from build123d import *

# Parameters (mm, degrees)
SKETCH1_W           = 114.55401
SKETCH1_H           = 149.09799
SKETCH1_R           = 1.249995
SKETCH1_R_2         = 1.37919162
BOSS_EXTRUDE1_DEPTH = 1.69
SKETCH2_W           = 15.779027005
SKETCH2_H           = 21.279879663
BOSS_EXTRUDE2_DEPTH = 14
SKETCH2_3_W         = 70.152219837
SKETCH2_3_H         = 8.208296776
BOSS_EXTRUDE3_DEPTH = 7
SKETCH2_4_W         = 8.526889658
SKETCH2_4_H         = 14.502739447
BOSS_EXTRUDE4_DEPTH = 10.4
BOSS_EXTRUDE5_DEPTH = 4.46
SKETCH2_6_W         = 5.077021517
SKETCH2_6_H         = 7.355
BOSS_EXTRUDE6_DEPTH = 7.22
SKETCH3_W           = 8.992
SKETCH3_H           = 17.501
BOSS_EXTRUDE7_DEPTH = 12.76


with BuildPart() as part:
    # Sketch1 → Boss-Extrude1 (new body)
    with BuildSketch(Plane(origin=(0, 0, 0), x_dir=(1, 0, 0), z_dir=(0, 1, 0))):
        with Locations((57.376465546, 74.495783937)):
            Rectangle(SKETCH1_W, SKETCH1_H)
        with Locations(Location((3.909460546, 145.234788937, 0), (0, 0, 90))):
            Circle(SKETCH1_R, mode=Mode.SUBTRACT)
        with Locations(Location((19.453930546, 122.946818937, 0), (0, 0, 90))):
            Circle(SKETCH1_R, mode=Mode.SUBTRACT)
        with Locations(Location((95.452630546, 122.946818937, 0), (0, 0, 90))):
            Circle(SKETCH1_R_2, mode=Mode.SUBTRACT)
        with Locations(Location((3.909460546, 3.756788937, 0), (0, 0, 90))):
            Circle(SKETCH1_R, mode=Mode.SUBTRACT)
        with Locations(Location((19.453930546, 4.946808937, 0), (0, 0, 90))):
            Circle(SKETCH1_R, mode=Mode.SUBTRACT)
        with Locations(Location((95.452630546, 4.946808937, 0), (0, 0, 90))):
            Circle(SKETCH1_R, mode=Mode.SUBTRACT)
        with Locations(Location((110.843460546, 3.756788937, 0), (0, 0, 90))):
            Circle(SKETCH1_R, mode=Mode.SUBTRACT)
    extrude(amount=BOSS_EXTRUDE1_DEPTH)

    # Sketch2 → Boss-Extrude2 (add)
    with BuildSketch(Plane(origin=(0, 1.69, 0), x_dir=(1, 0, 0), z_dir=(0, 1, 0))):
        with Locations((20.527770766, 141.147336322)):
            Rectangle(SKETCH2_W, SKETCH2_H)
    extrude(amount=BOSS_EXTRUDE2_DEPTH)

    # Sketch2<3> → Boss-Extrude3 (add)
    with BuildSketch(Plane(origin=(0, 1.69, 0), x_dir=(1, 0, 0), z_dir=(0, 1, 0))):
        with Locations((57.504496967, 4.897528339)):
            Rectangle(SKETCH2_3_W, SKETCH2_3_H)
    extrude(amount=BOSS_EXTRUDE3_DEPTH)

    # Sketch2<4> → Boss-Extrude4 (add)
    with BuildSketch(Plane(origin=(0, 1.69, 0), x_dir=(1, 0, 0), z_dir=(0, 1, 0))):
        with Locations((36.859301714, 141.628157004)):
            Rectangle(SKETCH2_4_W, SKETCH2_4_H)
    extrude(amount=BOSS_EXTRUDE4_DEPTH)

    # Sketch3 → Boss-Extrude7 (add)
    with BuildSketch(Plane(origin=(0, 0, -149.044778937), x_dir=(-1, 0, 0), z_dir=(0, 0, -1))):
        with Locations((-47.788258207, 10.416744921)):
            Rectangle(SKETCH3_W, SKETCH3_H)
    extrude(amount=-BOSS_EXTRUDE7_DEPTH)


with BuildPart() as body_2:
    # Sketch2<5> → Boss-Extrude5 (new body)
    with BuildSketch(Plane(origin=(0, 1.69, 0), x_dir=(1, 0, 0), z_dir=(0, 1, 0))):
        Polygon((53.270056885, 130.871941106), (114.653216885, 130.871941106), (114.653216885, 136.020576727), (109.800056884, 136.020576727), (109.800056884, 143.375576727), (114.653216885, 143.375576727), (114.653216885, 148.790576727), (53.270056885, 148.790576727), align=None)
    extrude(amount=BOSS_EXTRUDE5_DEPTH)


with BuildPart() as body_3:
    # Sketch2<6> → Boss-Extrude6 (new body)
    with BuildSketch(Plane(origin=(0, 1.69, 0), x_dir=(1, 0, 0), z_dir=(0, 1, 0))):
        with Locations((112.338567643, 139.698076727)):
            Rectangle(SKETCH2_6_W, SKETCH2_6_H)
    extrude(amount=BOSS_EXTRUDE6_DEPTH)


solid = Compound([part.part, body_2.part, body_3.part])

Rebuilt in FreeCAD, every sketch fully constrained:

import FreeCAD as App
import Part
import Sketcher

V = App.Vector
Q = App.Units.Quantity

doc = App.newDocument("Part")
body = doc.addObject("PartDesign::Body", "Body")

sketch1 = body.newObject("Sketcher::SketchObject", "Sketch")
sketch1.AttachmentSupport = (doc.getObject("XZ_Plane"), [""])
sketch1.MapMode = "FlatFace"
sketch1.addGeometry(Part.LineSegment(V(0.1, -149, 0), V(0.1, 0.1, 0)), False)
sketch1.addGeometry(Part.LineSegment(V(0.1, 0.1, 0), V(114.7, 0.1, 0)), False)
sketch1.addGeometry(Part.LineSegment(V(114.7, 0.1, 0), V(114.7, -149, 0)), False)
sketch1.addGeometry(Part.LineSegment(V(114.7, -149, 0), V(0.1, -149, 0)), False)
sketch1.addGeometry(Part.Circle(V(3.9, -3.8, 0), V(0, 0, 1), 1.2), False)
sketch1.addGeometry(Part.Circle(V(19.5, -4.9, 0), V(0, 0, 1), 1.2), False)
sketch1.addGeometry(Part.Circle(V(95.5, -4.9, 0), V(0, 0, 1), 1.2), False)
sketch1.addGeometry(Part.Circle(V(110.8, -3.8, 0), V(0, 0, 1), 1.2), False)
sketch1.addGeometry(Part.Circle(V(19.5, -122.9, 0), V(0, 0, 1), 1.2), False)
sketch1.addGeometry(Part.Circle(V(3.9, -145.2, 0), V(0, 0, 1), 1.2), False)
sketch1.addGeometry(Part.Circle(V(95.5, -122.9, 0), V(0, 0, 1), 1.4), False)
sketch1.addConstraint(Sketcher.Constraint("Coincident", 0, 2, 1, 1))
sketch1.addConstraint(Sketcher.Constraint("Coincident", 1, 2, 2, 1))
sketch1.addConstraint(Sketcher.Constraint("Coincident", 2, 2, 3, 1))
sketch1.addConstraint(Sketcher.Constraint("Coincident", 3, 2, 0, 1))
sketch1.addConstraint(Sketcher.Constraint("Vertical", 0))
sketch1.addConstraint(Sketcher.Constraint("Horizontal", 1))
sketch1.addConstraint(Sketcher.Constraint("Vertical", 2))
sketch1.addConstraint(Sketcher.Constraint("Horizontal", 3))
sketch1.addConstraint(Sketcher.Constraint("Equal", 4, 5))
sketch1.addConstraint(Sketcher.Constraint("Equal", 5, 6))
sketch1.addConstraint(Sketcher.Constraint("Equal", 6, 7))
sketch1.addConstraint(Sketcher.Constraint("Equal", 7, 8))
sketch1.addConstraint(Sketcher.Constraint("Equal", 8, 9))
sketch1.addConstraint(Sketcher.Constraint("Horizontal", 5, 3, 6, 3))
sketch1.addConstraint(Sketcher.Constraint("Horizontal", 4, 3, 7, 3))
sketch1.addConstraint(Sketcher.Constraint("Horizontal", 8, 3, 10, 3))
sketch1.addConstraint(Sketcher.Constraint("Vertical", 5, 3, 8, 3))
sketch1.addConstraint(Sketcher.Constraint("Vertical", 4, 3, 9, 3))
sketch1.addConstraint(Sketcher.Constraint("Vertical", 6, 3, 10, 3))
sketch1.addConstraint(Sketcher.Constraint("Diameter", 4, Q("2.49999 mm")))
sketch1.addConstraint(Sketcher.Constraint("DistanceX", 0, 2, 4, 3, Q("3.81 mm")))
sketch1.addConstraint(Sketcher.Constraint("DistanceY", 4, 3, 0, 2, Q("3.81 mm")))
sketch1.addConstraint(Sketcher.Constraint("Diameter", 10, Q("2.758383 mm")))
sketch1.addConstraint(Sketcher.Constraint("DistanceX", 4, 3, 7, 3, Q("106.934 mm")))
sketch1.addConstraint(Sketcher.Constraint("DistanceY", 9, 3, 4, 3, Q("141.478 mm")))
sketch1.addConstraint(Sketcher.Constraint("DistanceX", 1, 1, 1, 2, Q("114.55401 mm")))
sketch1.addConstraint(Sketcher.Constraint("DistanceY", 0, 1, 0, 2, Q("149.09799 mm")))
sketch1.addConstraint(Sketcher.Constraint("DistanceX", 5, 3, 6, 3, Q("75.9987 mm")))
sketch1.addConstraint(Sketcher.Constraint("DistanceX", -1, 1, 4, 3, Q("3.909461 mm")))
sketch1.addConstraint(Sketcher.Constraint("DistanceY", 4, 3, -1, 1, Q("3.756789 mm")))
sketch1.addConstraint(Sketcher.Constraint("DistanceX", -1, 1, 5, 3, Q("19.453931 mm")))
sketch1.addConstraint(Sketcher.Constraint("DistanceY", 5, 3, -1, 1, Q("4.946809 mm")))
sketch1.addConstraint(Sketcher.Constraint("DistanceY", 8, 3, -1, 1, Q("122.946819 mm")))
pad1 = body.newObject("PartDesign::Pad", "Pad")
pad1.Profile = sketch1
pad1.Length = 1.69
pad1.Reversed = True

sketch2 = body.newObject("Sketcher::SketchObject", "Sketch001")
sketch2.AttachmentSupport = (doc.getObject("XZ_Plane"), [""])
sketch2.MapMode = "FlatFace"
sketch2.AttachmentOffset = App.Placement(V(0, 0, -1.69), App.Rotation())
sketch2.addGeometry(Part.LineSegment(V(13, -152, 0), V(13, -131, 0)), False)
sketch2.addGeometry(Part.LineSegment(V(13, -131, 0), V(28, -131, 0)), False)
sketch2.addGeometry(Part.LineSegment(V(28, -131, 0), V(28, -152, 0)), False)
sketch2.addGeometry(Part.LineSegment(V(28, -152, 0), V(13, -152, 0)), False)
sketch2.addConstraint(Sketcher.Constraint("Coincident", 0, 2, 1, 1))
sketch2.addConstraint(Sketcher.Constraint("Coincident", 1, 2, 2, 1))
sketch2.addConstraint(Sketcher.Constraint("Coincident", 2, 2, 3, 1))
sketch2.addConstraint(Sketcher.Constraint("Coincident", 3, 2, 0, 1))
sketch2.addConstraint(Sketcher.Constraint("Vertical", 0))
sketch2.addConstraint(Sketcher.Constraint("Horizontal", 1))
sketch2.addConstraint(Sketcher.Constraint("Vertical", 2))
sketch2.addConstraint(Sketcher.Constraint("Horizontal", 3))
sketch2.addConstraint(Sketcher.Constraint("DistanceY", 0, 1, 0, 2, Q("21.27988 mm")))
sketch2.addConstraint(Sketcher.Constraint("DistanceX", 1, 1, 1, 2, Q("15.779027 mm")))
sketch2.addConstraint(Sketcher.Constraint("DistanceX", -1, 1, 0, 2, Q("12.638257 mm")))
sketch2.addConstraint(Sketcher.Constraint("DistanceY", 0, 2, -1, 1, Q("130.507396 mm")))
pad2 = body.newObject("PartDesign::Pad", "Pad001")
pad2.Profile = sketch2
pad2.Length = 14
pad2.Reversed = True

sketch3 = body.newObject("Sketcher::SketchObject", "Sketch002")
sketch3.AttachmentSupport = (doc.getObject("XZ_Plane"), [""])
sketch3.MapMode = "FlatFace"
sketch3.AttachmentOffset = App.Placement(V(0, 0, -1.69), App.Rotation())
sketch3.addGeometry(Part.LineSegment(V(22, -9, 0), V(22, -1, 0)), False)
sketch3.addGeometry(Part.LineSegment(V(22, -1, 0), V(93, -1, 0)), False)
sketch3.addGeometry(Part.LineSegment(V(93, -1, 0), V(93, -9, 0)), False)
sketch3.addGeometry(Part.LineSegment(V(93, -9, 0), V(22, -9, 0)), False)
sketch3.addConstraint(Sketcher.Constraint("Coincident", 0, 2, 1, 1))
sketch3.addConstraint(Sketcher.Constraint("Coincident", 1, 2, 2, 1))
sketch3.addConstraint(Sketcher.Constraint("Coincident", 2, 2, 3, 1))
sketch3.addConstraint(Sketcher.Constraint("Coincident", 3, 2, 0, 1))
sketch3.addConstraint(Sketcher.Constraint("Vertical", 0))
sketch3.addConstraint(Sketcher.Constraint("Horizontal", 1))
sketch3.addConstraint(Sketcher.Constraint("Vertical", 2))
sketch3.addConstraint(Sketcher.Constraint("Horizontal", 3))
sketch3.addConstraint(Sketcher.Constraint("DistanceX", 1, 1, 1, 2, Q("70.15222 mm")))
sketch3.addConstraint(Sketcher.Constraint("DistanceY", 0, 1, 0, 2, Q("8.208297 mm")))
sketch3.addConstraint(Sketcher.Constraint("DistanceY", 0, 2, -1, 1, Q("0.79338 mm")))
sketch3.addConstraint(Sketcher.Constraint("DistanceX", -1, 1, 0, 2, Q("22.428387 mm")))
pad3 = body.newObject("PartDesign::Pad", "Pad002")
pad3.Profile = sketch3
pad3.Length = 7
pad3.Reversed = True

sketch4 = body.newObject("Sketcher::SketchObject", "Sketch003")
sketch4.AttachmentSupport = (doc.getObject("XZ_Plane"), [""])
sketch4.MapMode = "FlatFace"
sketch4.AttachmentOffset = App.Placement(V(0, 0, -1.69), App.Rotation())
sketch4.addGeometry(Part.LineSegment(V(33, -149, 0), V(33, -134, 0)), False)
sketch4.addGeometry(Part.LineSegment(V(33, -134, 0), V(41, -134, 0)), False)
sketch4.addGeometry(Part.LineSegment(V(41, -134, 0), V(41, -149, 0)), False)
sketch4.addGeometry(Part.LineSegment(V(41, -149, 0), V(33, -149, 0)), False)
sketch4.addConstraint(Sketcher.Constraint("Coincident", 0, 2, 1, 1))
sketch4.addConstraint(Sketcher.Constraint("Coincident", 1, 2, 2, 1))
sketch4.addConstraint(Sketcher.Constraint("Coincident", 2, 2, 3, 1))
sketch4.addConstraint(Sketcher.Constraint("Coincident", 3, 2, 0, 1))
sketch4.addConstraint(Sketcher.Constraint("Vertical", 0))
sketch4.addConstraint(Sketcher.Constraint("Horizontal", 1))
sketch4.addConstraint(Sketcher.Constraint("Vertical", 2))
sketch4.addConstraint(Sketcher.Constraint("Horizontal", 3))
sketch4.addConstraint(Sketcher.Constraint("DistanceX", 1, 1, 1, 2, Q("8.52689 mm")))
sketch4.addConstraint(Sketcher.Constraint("DistanceY", 0, 1, 0, 2, Q("14.502739 mm")))
sketch4.addConstraint(Sketcher.Constraint("DistanceX", -1, 1, 0, 2, Q("32.595857 mm")))
sketch4.addConstraint(Sketcher.Constraint("DistanceY", 0, 2, -1, 1, Q("134.376787 mm")))
pad4 = body.newObject("PartDesign::Pad", "Pad003")
pad4.Profile = sketch4
pad4.Length = 10.4
pad4.Reversed = True

sketch5 = body.newObject("Sketcher::SketchObject", "Sketch004")
sketch5.AttachmentSupport = (doc.getObject("XY_Plane"), [""])
sketch5.MapMode = "FlatFace"
sketch5.AttachmentOffset = App.Placement(V(0, 0, -149.044779), App.Rotation())
sketch5.addGeometry(Part.LineSegment(V(52, 19, 0), V(52, 2, 0)), False)
sketch5.addGeometry(Part.LineSegment(V(52, 2, 0), V(43, 2, 0)), False)
sketch5.addGeometry(Part.LineSegment(V(43, 2, 0), V(43, 19, 0)), False)
sketch5.addGeometry(Part.LineSegment(V(43, 19, 0), V(52, 19, 0)), False)
sketch5.addConstraint(Sketcher.Constraint("Coincident", 0, 2, 1, 1))
sketch5.addConstraint(Sketcher.Constraint("Coincident", 1, 2, 2, 1))
sketch5.addConstraint(Sketcher.Constraint("Coincident", 2, 2, 3, 1))
sketch5.addConstraint(Sketcher.Constraint("Coincident", 3, 2, 0, 1))
sketch5.addConstraint(Sketcher.Constraint("Vertical", 0))
sketch5.addConstraint(Sketcher.Constraint("Horizontal", 1))
sketch5.addConstraint(Sketcher.Constraint("Vertical", 2))
sketch5.addConstraint(Sketcher.Constraint("Horizontal", 3))
sketch5.addConstraint(Sketcher.Constraint("DistanceX", 1, 2, 1, 1, Q("8.992 mm")))
sketch5.addConstraint(Sketcher.Constraint("DistanceY", 0, 2, 0, 1, Q("17.501 mm")))
sketch5.addConstraint(Sketcher.Constraint("DistanceX", -1, 1, 0, 2, Q("52.284258 mm")))
sketch5.addConstraint(Sketcher.Constraint("DistanceY", -1, 1, 0, 2, Q("1.666245 mm")))
pad5 = body.newObject("PartDesign::Pad", "Pad004")
pad5.Profile = sketch5
pad5.Length = 12.76
body2 = doc.addObject("PartDesign::Body", "Body001")

sketch6 = body2.newObject("Sketcher::SketchObject", "Sketch005")
sketch6.AttachmentSupport = (doc.getObject("XZ_Plane001"), [""])
sketch6.MapMode = "FlatFace"
sketch6.AttachmentOffset = App.Placement(V(0, 0, -1.69), App.Rotation())
sketch6.addGeometry(Part.LineSegment(V(53.3, -130.9, 0), V(114.7, -130.9, 0)), False)
sketch6.addGeometry(Part.LineSegment(V(114.7, -130.9, 0), V(114.7, -136, 0)), False)
sketch6.addGeometry(Part.LineSegment(V(114.7, -136, 0), V(109.8, -136, 0)), False)
sketch6.addGeometry(Part.LineSegment(V(109.8, -136, 0), V(109.8, -143.4, 0)), False)
sketch6.addGeometry(Part.LineSegment(V(109.8, -143.4, 0), V(114.7, -143.4, 0)), False)
sketch6.addGeometry(Part.LineSegment(V(114.7, -143.4, 0), V(114.7, -148.8, 0)), False)
sketch6.addGeometry(Part.LineSegment(V(114.7, -148.8, 0), V(53.3, -148.8, 0)), False)
sketch6.addGeometry(Part.LineSegment(V(53.3, -148.8, 0), V(53.3, -130.9, 0)), False)
sketch6.addConstraint(Sketcher.Constraint("Coincident", 0, 2, 1, 1))
sketch6.addConstraint(Sketcher.Constraint("Coincident", 1, 2, 2, 1))
sketch6.addConstraint(Sketcher.Constraint("Coincident", 2, 2, 3, 1))
sketch6.addConstraint(Sketcher.Constraint("Coincident", 3, 2, 4, 1))
sketch6.addConstraint(Sketcher.Constraint("Coincident", 4, 2, 5, 1))
sketch6.addConstraint(Sketcher.Constraint("Coincident", 5, 2, 6, 1))
sketch6.addConstraint(Sketcher.Constraint("Coincident", 6, 2, 7, 1))
sketch6.addConstraint(Sketcher.Constraint("Coincident", 7, 2, 0, 1))
sketch6.addConstraint(Sketcher.Constraint("Horizontal", 0))
sketch6.addConstraint(Sketcher.Constraint("Vertical", 1))
sketch6.addConstraint(Sketcher.Constraint("Horizontal", 2))
sketch6.addConstraint(Sketcher.Constraint("Vertical", 3))
sketch6.addConstraint(Sketcher.Constraint("Horizontal", 4))
sketch6.addConstraint(Sketcher.Constraint("Vertical", 5))
sketch6.addConstraint(Sketcher.Constraint("Horizontal", 6))
sketch6.addConstraint(Sketcher.Constraint("Vertical", 7))
sketch6.addConstraint(Sketcher.Constraint("Vertical", 1, 2, 4, 2))
sketch6.addConstraint(Sketcher.Constraint("DistanceY", 3, 2, 3, 1, Q("7.355 mm")))
sketch6.addConstraint(Sketcher.Constraint("DistanceY", 5, 2, 5, 1, Q("5.415 mm")))
sketch6.addConstraint(Sketcher.Constraint("DistanceX", 6, 2, 3, 2, Q("56.53 mm")))
sketch6.addConstraint(Sketcher.Constraint("DistanceX", 0, 1, 0, 2, Q("61.38316 mm")))
sketch6.addConstraint(Sketcher.Constraint("DistanceY", 1, 2, 1, 1, Q("5.148636 mm")))
sketch6.addConstraint(Sketcher.Constraint("DistanceY", 0, 2, -1, 1, Q("130.871941 mm")))
sketch6.addConstraint(Sketcher.Constraint("DistanceX", -1, 1, 0, 2, Q("114.653217 mm")))
pad6 = body2.newObject("PartDesign::Pad", "Pad005")
pad6.Profile = sketch6
pad6.Length = 4.46
pad6.Reversed = True
body3 = doc.addObject("PartDesign::Body", "Body002")

sketch7 = body3.newObject("Sketcher::SketchObject", "Sketch006")
sketch7.AttachmentSupport = (doc.getObject("XZ_Plane002"), [""])
sketch7.MapMode = "FlatFace"
sketch7.AttachmentOffset = App.Placement(V(0, 0, -1.69), App.Rotation())
sketch7.addGeometry(Part.LineSegment(V(110, -143, 0), V(110, -136, 0)), False)
sketch7.addGeometry(Part.LineSegment(V(110, -136, 0), V(115, -136, 0)), False)
sketch7.addGeometry(Part.LineSegment(V(115, -136, 0), V(115, -143, 0)), False)
sketch7.addGeometry(Part.LineSegment(V(115, -143, 0), V(110, -143, 0)), False)
sketch7.addConstraint(Sketcher.Constraint("Coincident", 0, 2, 1, 1))
sketch7.addConstraint(Sketcher.Constraint("Coincident", 1, 2, 2, 1))
sketch7.addConstraint(Sketcher.Constraint("Coincident", 2, 2, 3, 1))
sketch7.addConstraint(Sketcher.Constraint("Coincident", 3, 2, 0, 1))
sketch7.addConstraint(Sketcher.Constraint("Vertical", 0))
sketch7.addConstraint(Sketcher.Constraint("Horizontal", 1))
sketch7.addConstraint(Sketcher.Constraint("Vertical", 2))
sketch7.addConstraint(Sketcher.Constraint("Horizontal", 3))
sketch7.addConstraint(Sketcher.Constraint("DistanceY", 0, 1, 0, 2, Q("7.355 mm")))
sketch7.addConstraint(Sketcher.Constraint("DistanceX", 1, 1, 1, 2, Q("5.077022 mm")))
sketch7.addConstraint(Sketcher.Constraint("DistanceX", -1, 1, 1, 2, Q("114.877078 mm")))
sketch7.addConstraint(Sketcher.Constraint("DistanceY", 0, 2, -1, 1, Q("136.020577 mm")))
pad7 = body3.newObject("PartDesign::Pad", "Pad006")
pad7.Profile = sketch7
pad7.Length = 7.22
pad7.Reversed = True

doc.recompute()
